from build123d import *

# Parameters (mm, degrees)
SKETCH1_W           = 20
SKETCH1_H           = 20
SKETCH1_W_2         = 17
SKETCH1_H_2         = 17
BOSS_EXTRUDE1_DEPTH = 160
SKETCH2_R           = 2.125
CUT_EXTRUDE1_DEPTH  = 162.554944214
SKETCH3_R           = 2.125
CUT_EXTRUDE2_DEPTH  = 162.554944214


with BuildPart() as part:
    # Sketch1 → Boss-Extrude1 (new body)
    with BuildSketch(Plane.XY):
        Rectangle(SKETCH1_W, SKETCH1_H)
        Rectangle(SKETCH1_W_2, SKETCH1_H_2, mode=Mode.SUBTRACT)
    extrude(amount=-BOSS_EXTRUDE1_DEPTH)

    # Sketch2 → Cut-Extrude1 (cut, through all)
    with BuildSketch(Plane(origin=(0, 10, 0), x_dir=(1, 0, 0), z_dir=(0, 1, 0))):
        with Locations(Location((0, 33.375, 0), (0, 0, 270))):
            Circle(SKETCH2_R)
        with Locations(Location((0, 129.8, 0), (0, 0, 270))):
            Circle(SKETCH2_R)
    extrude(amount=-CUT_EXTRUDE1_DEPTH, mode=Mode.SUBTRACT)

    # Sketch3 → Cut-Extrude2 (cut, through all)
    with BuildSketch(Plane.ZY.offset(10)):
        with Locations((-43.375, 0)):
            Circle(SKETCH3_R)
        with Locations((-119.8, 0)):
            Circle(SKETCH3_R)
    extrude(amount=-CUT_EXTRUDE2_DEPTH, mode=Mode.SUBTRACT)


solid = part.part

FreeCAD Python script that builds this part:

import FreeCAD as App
import Part
import Sketcher
from FreeCAD import Vector
Q = App.Units.Quantity


def add_polygon(sketch, points):
    """Adds a closed chain of lines whose ends are joined by coincident constraints."""
    first, n = sketch.GeometryCount, len(points)
    for a, b in zip(points, points[1:] + points[:1]):
        sketch.addGeometry(Part.LineSegment(App.Vector(*a, 0), App.Vector(*b, 0)), False)
    for i in range(n):
        sketch.addConstraint(Sketcher.Constraint("Coincident", first + i, 2, first + (i + 1) % n, 1))

doc = App.newDocument("Part")
body = doc.addObject("PartDesign::Body", "Body")

# Sketch on XY plane
sketch1 = body.newObject("Sketcher::SketchObject", "Sketch")
sketch1.AttachmentSupport = (doc.getObject("XY_Plane"), [""])
sketch1.MapMode = "FlatFace"
add_polygon(sketch1, [(-10, 10), (-10, -10), (10, -10), (10, 10)])  # lines 0-3
add_polygon(sketch1, [(8.5, -8.5), (-8.5, -8.5), (-8.5, 8.5), (8.5, 8.5)])  # lines 4-7
sketch1.addConstraint([
    Sketcher.Constraint("Vertical", 0),
    Sketcher.Constraint("Horizontal", 1),
    Sketcher.Constraint("Vertical", 2),
    Sketcher.Constraint("Horizontal", 3),
    Sketcher.Constraint("Horizontal", 4),
    Sketcher.Constraint("Vertical", 5),
    Sketcher.Constraint("Horizontal", 6),
    Sketcher.Constraint("Vertical", 7),
    Sketcher.Constraint("Symmetric", 0, 2, 2, 2, -1, 1),
    Sketcher.Constraint("Symmetric", 4, 2, 6, 2, -1, 1),
    Sketcher.Constraint("Equal", 3, 0),
    Sketcher.Constraint("Equal", 6, 5),
    Sketcher.Constraint("DistanceX", 1, 1, 1, 2, Q("20 mm")),
    Sketcher.Constraint("DistanceX", 4, 2, 4, 1, Q("17 mm")),
])
pad1 = body.newObject("PartDesign::Pad", "Pad")
pad1.Profile = sketch1
pad1.Length = 160
pad1.Reversed = True

# Sketch on XZ plane
sketch2 = body.newObject("Sketcher::SketchObject", "Sketch001")
sketch2.AttachmentSupport = (doc.getObject("XZ_Plane"), [""])
sketch2.MapMode = "FlatFace"
sketch2.AttachmentOffset = App.Placement(Vector(0, 0, -10), App.Rotation())
sketch2.addGeometry([
    Part.Circle(Vector(0, -33.375, 0), Vector(0, 0, 1), 2.125),
    Part.Circle(Vector(0, -129.8, 0), Vector(0, 0, 1), 2.125),
], False)
sketch2.addConstraint([
    Sketcher.Constraint("Equal", 0, 1),
    Sketcher.Constraint("PointOnObject", 0, 3, -2),
    Sketcher.Constraint("PointOnObject", 1, 3, -2),
    Sketcher.Constraint("Diameter", 0, Q("4.25 mm")),
    Sketcher.Constraint("DistanceY", 1, 3, -1, 1, Q("129.8 mm")),
    Sketcher.Constraint("DistanceY", 0, 3, -1, 1, Q("33.375 mm")),
])
pocket1 = body.newObject("PartDesign::Pocket", "Pocket")
pocket1.Profile = sketch2
pocket1.Type = "ThroughAll"
pocket1.Reversed = True

# Sketch on YZ plane
sketch3 = body.newObject("Sketcher::SketchObject", "Sketch002")
sketch3.AttachmentSupport = (doc.getObject("YZ_Plane"), [""])
sketch3.MapMode = "FlatFace"
sketch3.AttachmentOffset = App.Placement(Vector(0, 0, -10), App.Rotation())
sketch3.addGeometry([
    Part.Circle(Vector(0, -43.375, 0), Vector(0, 0, 1), 2.125),
    Part.Circle(Vector(0, -119.8, 0), Vector(0, 0, 1), 2.125),
], False)
sketch3.addConstraint([
    Sketcher.Constraint("Equal", 0, 1),
    Sketcher.Constraint("PointOnObject", 0, 3, -2),
    Sketcher.Constraint("PointOnObject", 1, 3, -2),
    Sketcher.Constraint("Diameter", 0, Q("4.25 mm")),
    Sketcher.Constraint("DistanceY", 1, 3, -1, 1, Q("119.8 mm")),
    Sketcher.Constraint("DistanceY", 0, 3, -1, 1, Q("43.375 mm")),
])
pocket2 = body.newObject("PartDesign::Pocket", "Pocket001")
pocket2.Profile = sketch3
pocket2.Type = "ThroughAll"
pocket2.Reversed = True

doc.recompute()
